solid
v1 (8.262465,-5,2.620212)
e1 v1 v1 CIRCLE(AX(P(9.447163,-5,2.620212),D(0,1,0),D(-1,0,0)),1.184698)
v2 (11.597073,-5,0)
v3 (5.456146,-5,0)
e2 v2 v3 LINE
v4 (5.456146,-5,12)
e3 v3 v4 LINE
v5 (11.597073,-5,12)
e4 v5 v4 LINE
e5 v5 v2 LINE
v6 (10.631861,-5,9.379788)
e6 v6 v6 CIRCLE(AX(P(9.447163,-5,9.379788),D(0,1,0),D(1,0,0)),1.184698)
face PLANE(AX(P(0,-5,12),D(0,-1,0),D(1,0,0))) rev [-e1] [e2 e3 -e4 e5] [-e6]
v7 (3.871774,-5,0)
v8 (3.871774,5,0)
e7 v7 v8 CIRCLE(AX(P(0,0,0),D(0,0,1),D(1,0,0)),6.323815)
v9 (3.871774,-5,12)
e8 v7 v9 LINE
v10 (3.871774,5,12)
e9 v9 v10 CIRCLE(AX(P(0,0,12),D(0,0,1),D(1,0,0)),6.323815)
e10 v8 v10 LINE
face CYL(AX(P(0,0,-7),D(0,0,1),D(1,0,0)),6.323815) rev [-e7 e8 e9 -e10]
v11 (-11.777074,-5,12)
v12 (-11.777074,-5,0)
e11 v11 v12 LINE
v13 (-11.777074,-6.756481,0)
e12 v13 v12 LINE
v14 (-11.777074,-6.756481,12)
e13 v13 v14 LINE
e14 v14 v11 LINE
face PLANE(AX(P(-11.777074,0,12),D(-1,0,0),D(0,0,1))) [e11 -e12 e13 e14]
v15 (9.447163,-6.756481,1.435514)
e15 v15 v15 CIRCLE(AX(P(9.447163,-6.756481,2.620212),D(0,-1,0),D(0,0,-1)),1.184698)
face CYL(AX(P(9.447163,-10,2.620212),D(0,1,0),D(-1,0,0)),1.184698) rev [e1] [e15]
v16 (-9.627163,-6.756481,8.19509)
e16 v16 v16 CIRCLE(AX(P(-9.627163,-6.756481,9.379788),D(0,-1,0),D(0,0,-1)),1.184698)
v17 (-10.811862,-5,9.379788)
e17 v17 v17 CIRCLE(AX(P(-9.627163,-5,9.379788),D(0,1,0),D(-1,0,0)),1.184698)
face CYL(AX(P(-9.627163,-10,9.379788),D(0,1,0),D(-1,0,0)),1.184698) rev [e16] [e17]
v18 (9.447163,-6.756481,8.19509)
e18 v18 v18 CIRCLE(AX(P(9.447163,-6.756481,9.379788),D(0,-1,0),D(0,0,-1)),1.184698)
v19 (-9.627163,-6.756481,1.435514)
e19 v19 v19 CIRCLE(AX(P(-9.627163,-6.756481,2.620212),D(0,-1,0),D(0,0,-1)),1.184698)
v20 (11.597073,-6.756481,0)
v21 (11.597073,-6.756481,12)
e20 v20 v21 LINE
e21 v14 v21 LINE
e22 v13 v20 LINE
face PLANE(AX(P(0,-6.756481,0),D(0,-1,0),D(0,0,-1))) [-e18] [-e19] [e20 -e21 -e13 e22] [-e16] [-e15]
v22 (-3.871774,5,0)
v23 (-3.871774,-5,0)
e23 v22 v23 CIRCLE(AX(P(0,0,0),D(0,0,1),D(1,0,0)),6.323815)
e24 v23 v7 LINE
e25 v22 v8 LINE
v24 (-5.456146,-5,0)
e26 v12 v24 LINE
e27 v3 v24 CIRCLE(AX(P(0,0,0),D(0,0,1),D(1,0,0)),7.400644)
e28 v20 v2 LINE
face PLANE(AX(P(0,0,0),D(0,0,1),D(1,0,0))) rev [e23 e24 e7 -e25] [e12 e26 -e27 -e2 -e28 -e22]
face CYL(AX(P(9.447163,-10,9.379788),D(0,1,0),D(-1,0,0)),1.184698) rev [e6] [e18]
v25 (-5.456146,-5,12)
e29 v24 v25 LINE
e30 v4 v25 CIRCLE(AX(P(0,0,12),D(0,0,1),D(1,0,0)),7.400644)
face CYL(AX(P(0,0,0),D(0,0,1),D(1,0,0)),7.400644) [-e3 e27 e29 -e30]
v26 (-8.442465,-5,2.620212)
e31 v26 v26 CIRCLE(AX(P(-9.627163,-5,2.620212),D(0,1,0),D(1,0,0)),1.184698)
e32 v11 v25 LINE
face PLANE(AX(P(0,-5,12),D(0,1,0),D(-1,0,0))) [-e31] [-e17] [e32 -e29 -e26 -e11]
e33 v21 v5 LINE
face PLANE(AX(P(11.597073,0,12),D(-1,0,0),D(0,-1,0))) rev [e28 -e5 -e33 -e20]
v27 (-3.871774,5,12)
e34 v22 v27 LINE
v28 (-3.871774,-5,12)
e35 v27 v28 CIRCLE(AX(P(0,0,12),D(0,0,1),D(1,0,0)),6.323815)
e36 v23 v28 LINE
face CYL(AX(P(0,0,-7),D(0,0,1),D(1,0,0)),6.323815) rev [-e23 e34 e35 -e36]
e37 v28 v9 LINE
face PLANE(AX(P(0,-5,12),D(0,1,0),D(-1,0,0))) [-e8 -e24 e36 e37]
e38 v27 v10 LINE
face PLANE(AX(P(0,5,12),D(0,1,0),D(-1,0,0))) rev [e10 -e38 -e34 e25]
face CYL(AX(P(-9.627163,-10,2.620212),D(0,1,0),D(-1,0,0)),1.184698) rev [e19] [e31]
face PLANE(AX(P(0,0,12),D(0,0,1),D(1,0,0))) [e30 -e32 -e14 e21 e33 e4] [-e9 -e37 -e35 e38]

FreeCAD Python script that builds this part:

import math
import FreeCAD as App
import Part
import Sketcher
from FreeCAD import Vector
Q = App.Units.Quantity

doc = App.newDocument("Part")
params = doc.addObject("Spreadsheet::Sheet", "Params")
for row, (alias, value) in enumerate([
    ("sketch1_radius", "6 mm"),
    ("sketch1_height", "1 mm"),
    ("pad1_length", "12 mm"),
    ("pocket1_length", "5 mm"),
    ("pad2_length", "12 mm"),
    ("sketch4_radius", "6.09 mm"),
    ("pocket2_length", "12 mm"),
    ("pocket3_length", "12 mm"),
    ("pocket4_length", "19 mm"),
], start=1):
    params.set(f"A{row}", alias)
    params.set(f"B{row}", "=" + value)
    params.setAlias(f"B{row}", alias)

body = doc.addObject("PartDesign::Body", "Body")

# Sketch on XY plane
sketch1 = body.newObject("Sketcher::SketchObject", "Sketch")
sketch1.AttachmentSupport = (doc.getObject("XY_Plane"), [""])
sketch1.MapMode = "FlatFace"
sketch1.addGeometry([
    Part.ArcOfCircle(Part.Circle(Vector(-0.1, 0, 0), Vector(0, 0, 1), 6.9), math.radians(-47), math.radians(227)),  # 0
    Part.LineSegment(Vector(-4.8, -5, 0), Vector(-11.8, -5, 0)),  # 1
    Part.LineSegment(Vector(-11.8, -5, 0), Vector(-11.8, -6, 0)),  # 2
    Part.LineSegment(Vector(-11.8, -6, 0), Vector(11.6, -6, 0)),  # 3
    Part.LineSegment(Vector(11.6, -6, 0), Vector(11.6, -5, 0)),  # 4
    Part.LineSegment(Vector(11.6, -5, 0), Vector(4.6, -5, 0)),  # 5
    Part.ArcOfCircle(Part.Circle(Vector(-0.1, 0, 0), Vector(0, 0, 1), 6), math.radians(124), math.radians(236)),  # 6
    Part.LineSegment(Vector(-3.4, 5, 0), Vector(3.2, 5, 0)),  # 7
    Part.ArcOfCircle(Part.Circle(Vector(-0.1, 0, 0), Vector(0, 0, 1), 6), math.radians(-56), math.radians(56)),  # 8
    Part.LineSegment(Vector(3.2, -5, 0), Vector(-3.4, -5, 0)),  # 9
], False)
sketch1.addConstraint([
    Sketcher.Constraint("Coincident", 0, 2, 1, 1),
    Sketcher.Constraint("Coincident", 1, 2, 2, 1),
    Sketcher.Constraint("Coincident", 2, 2, 3, 1),
    Sketcher.Constraint("Coincident", 3, 2, 4, 1),
    Sketcher.Constraint("Coincident", 4, 2, 5, 1),
    Sketcher.Constraint("Coincident", 5, 2, 0, 1),
    Sketcher.Constraint("Coincident", 6, 1, 7, 1),
    Sketcher.Constraint("Coincident", 7, 2, 8, 2),
    Sketcher.Constraint("Coincident", 8, 1, 9, 1),
    Sketcher.Constraint("Coincident", 9, 2, 6, 2),
    Sketcher.Constraint("Horizontal", 1),
    Sketcher.Constraint("Vertical", 2),
    Sketcher.Constraint("Horizontal", 3),
    Sketcher.Constraint("Vertical", 4),
    Sketcher.Constraint("Horizontal", 5),
    Sketcher.Constraint("Horizontal", 7),
    Sketcher.Constraint("Horizontal", 9),
    Sketcher.Constraint("Coincident", 6, 3, 0, 3),
    Sketcher.Constraint("Coincident", 8, 3, 0, 3),
    Sketcher.Constraint("Equal", 6, 8),
    Sketcher.Constraint("Symmetric", 7, 2, 8, 1, -1),
    Sketcher.Constraint("Horizontal", 1, 2, 4, 2),
    Sketcher.Constraint("Horizontal", 5, 2, 8, 1),
    Sketcher.Constraint("Equal", 1, 5),
    Sketcher.Constraint("Radius", 6, Q("6 mm")),
    Sketcher.Constraint("DistanceY", 2, 2, 2, 1, Q("1 mm")),
    Sketcher.Constraint("DistanceY", 0, 2, -1, 1, Q("5 mm")),
    Sketcher.Constraint("DistanceX", 0, 3, -1, 1, Q("0.09 mm")),
    Sketcher.Constraint("Radius", 0, Q("6.852462 mm")),
    Sketcher.Constraint("DistanceX", 1, 2, 1, 1, Q("7.001326 mm")),
])
sketch1.setExpression("Constraints[24]", "Params.sketch1_radius")
sketch1.setExpression("Constraints[25]", "Params.sketch1_height")
pad1 = body.newObject("PartDesign::Pad", "Pad")
pad1.Profile = sketch1
pad1.setExpression("Length", "Params.pad1_length")

# Sketch on XZ plane
sketch2 = body.newObject("Sketcher::SketchObject", "Sketch001")
sketch2.AttachmentSupport = (doc.getObject("XZ_Plane"), [""])
sketch2.MapMode = "FlatFace"
sketch2.AttachmentOffset = App.Placement(Vector(0, 0, 5), App.Rotation())
sketch2.addGeometry([
    Part.Circle(Vector(-9.6, 9.4, 0), Vector(0, 0, 1), 1.2),
    Part.Circle(Vector(9.4, 9.4, 0), Vector(0, 0, 1), 1.2),
    Part.Circle(Vector(9.4, 2.6, 0), Vector(0, 0, 1), 1.2),
    Part.Circle(Vector(-9.6, 2.6, 0), Vector(0, 0, 1), 1.2),
], False)
sketch2.addConstraint([
    Sketcher.Constraint("Equal", 0, 1),
    Sketcher.Constraint("Equal", 1, 2),
    Sketcher.Constraint("Equal", 2, 3),
    Sketcher.Constraint("Horizontal", 0, 3, 1, 3),
    Sketcher.Constraint("Horizontal", 2, 3, 3, 3),
    Sketcher.Constraint("Vertical", 1, 3, 2, 3),
    Sketcher.Constraint("Vertical", 0, 3, 3, 3),
    Sketcher.Constraint("Diameter", 0, Q("2.369397 mm")),
    Sketcher.Constraint("DistanceY", -1, 1, 0, 3, Q("9.379788 mm")),
    Sketcher.Constraint("DistanceY", -1, 1, 2, 3, Q("2.620212 mm")),
    Sketcher.Constraint("DistanceX", 0, 3, -1, 1, Q("9.627163 mm")),
    Sketcher.Constraint("DistanceX", -1, 1, 1, 3, Q("9.447163 mm")),
])
pocket1 = body.newObject("PartDesign::Pocket", "Pocket")
pocket1.Profile = sketch2
pocket1.setExpression("Length", "Params.pocket1_length")
pocket1.Reversed = True

# Sketch on XY plane
sketch3 = body.newObject("Sketcher::SketchObject", "Sketch002")
sketch3.AttachmentSupport = (doc.getObject("XY_Plane"), [""])
sketch3.MapMode = "FlatFace"
sketch3.AttachmentOffset = App.Placement(Vector(0, 0, 12), App.Rotation())
sketch3.addGeometry([
    Part.ArcOfCircle(Part.Circle(Vector(0, 0, 0), Vector(0, 0, 1), 7.4), math.radians(-43), math.radians(223)),  # 0
    Part.LineSegment(Vector(-5.5, -5, 0), Vector(-4.8, -5, 0)),  # 1
    Part.ArcOfCircle(Part.Circle(Vector(-0.1, 0, 0), Vector(0, 0, 1), 6.9), math.radians(-47), math.radians(227)),  # 2
    Part.LineSegment(Vector(4.6, -5, 0), Vector(5.5, -5, 0)),  # 3
    Part.LineSegment(Vector(-11.8, -6, 0), Vector(-11.8, -6.8, 0)),  # 4
    Part.LineSegment(Vector(-11.8, -6.8, 0), Vector(11.6, -6.8, 0)),  # 5
    Part.LineSegment(Vector(11.6, -6.8, 0), Vector(11.6, -6, 0)),  # 6
    Part.LineSegment(Vector(11.6, -6, 0), Vector(-11.8, -6, 0)),  # 7
], False)
sketch3.addConstraint([
    Sketcher.Constraint("Coincident", 0, 2, 1, 1),
    Sketcher.Constraint("Coincident", 1, 2, 2, 2),
    Sketcher.Constraint("Coincident", 2, 1, 3, 1),
    Sketcher.Constraint("Coincident", 3, 2, 0, 1),
    Sketcher.Constraint("Coincident", 4, 2, 5, 1),
    Sketcher.Constraint("Coincident", 5, 2, 6, 1),
    Sketcher.Constraint("Coincident", 6, 2, 7, 1),
    Sketcher.Constraint("Coincident", 7, 2, 4, 1),
    Sketcher.Constraint("Horizontal", 1),
    Sketcher.Constraint("Horizontal", 3),
    Sketcher.Constraint("Vertical", 4),
    Sketcher.Constraint("Horizontal", 5),
    Sketcher.Constraint("Vertical", 6),
    Sketcher.Constraint("Horizontal", 7),
    Sketcher.Constraint("Coincident", 0, 3, -1, 1),
    Sketcher.Constraint("PointOnObject", 2, 3, -1),
    Sketcher.Constraint("Horizontal", 1, 2, 2, 1),
    Sketcher.Constraint("DistanceY", 0, 2, -1, 1, Q("5 mm")),
    Sketcher.Constraint("DistanceY", 6, 2, -1, 1, Q("6 mm")),
    Sketcher.Constraint("DistanceX", 2, 3, -1, 1, Q("0.09 mm")),
    Sketcher.Constraint("Radius", 2, Q("6.852462 mm")),
    Sketcher.Constraint("DistanceX", 3, 1, 3, 2, Q("0.860398 mm")),
    Sketcher.Constraint("DistanceY", 4, 2, 4, 1, Q("0.756481 mm")),
    Sketcher.Constraint("DistanceX", 5, 1, 5, 2, Q("23.374147 mm")),
    Sketcher.Constraint("DistanceX", 4, 2, 2, 1, Q("16.372821 mm")),
])
pad2 = body.newObject("PartDesign::Pad", "Pad001")
pad2.Profile = sketch3
pad2.setExpression("Length", "Params.pad2_length")
pad2.Reversed = True

# Sketch on XY plane
sketch4 = body.newObject("Sketcher::SketchObject", "Sketch003")
sketch4.AttachmentSupport = (doc.getObject("XY_Plane"), [""])
sketch4.MapMode = "FlatFace"
sketch4.AttachmentOffset = App.Placement(Vector(0, 0, 12), App.Rotation())
sketch4.addGeometry([
    Part.LineSegment(Vector(3, 5, 0), Vector(-3, 5, 0)),
    Part.ArcOfCircle(Part.Circle(Vector(0, 0, 0), Vector(0, 0, 1), 6), math.radians(125), math.radians(235)),
    Part.LineSegment(Vector(-3, -5, 0), Vector(3, -5, 0)),
    Part.ArcOfCircle(Part.Circle(Vector(0, 0, 0), Vector(0, 0, 1), 6), math.radians(-55), math.radians(55)),
], False)
sketch4.addConstraint([
    Sketcher.Constraint("Coincident", 0, 2, 1, 1),
    Sketcher.Constraint("Coincident", 1, 2, 2, 1),
    Sketcher.Constraint("Coincident", 2, 2, 3, 1),
    Sketcher.Constraint("Coincident", 3, 2, 0, 1),
    Sketcher.Constraint("Horizontal", 0),
    Sketcher.Constraint("Horizontal", 2),
    Sketcher.Constraint("Coincident", 1, 3, -1, 1),
    Sketcher.Constraint("Coincident", 3, 3, -1, 1),
    Sketcher.Constraint("Equal", 1, 3),
    Sketcher.Constraint("Vertical", 0, 2, 1, 2),
    Sketcher.Constraint("Radius", 1, Q("6.09 mm")),
    Sketcher.Constraint("DistanceY", -1, 1, 0, 2, Q("5 mm")),
])
sketch4.setExpression("Constraints[10]", "Params.sketch4_radius")
pocket2 = body.newObject("PartDesign::Pocket", "Pocket001")
pocket2.Profile = sketch4
pocket2.setExpression("Length", "Params.pocket2_length")

# Sketch on XZ plane
sketch5 = body.newObject("Sketcher::SketchObject", "Sketch004")
sketch5.AttachmentSupport = (doc.getObject("XZ_Plane"), [""])
sketch5.MapMode = "FlatFace"
sketch5.AttachmentOffset = App.Placement(Vector(0, 0, 5), App.Rotation())
sketch5.addGeometry([
    Part.Circle(Vector(-9.6, 2.6, 0), Vector(0, 0, 1), 1.2),
    Part.Circle(Vector(-9.6, 9.4, 0), Vector(0, 0, 1), 1.2),
    Part.Circle(Vector(9.4, 2.6, 0), Vector(0, 0, 1), 1.2),
    Part.Circle(Vector(9.4, 9.4, 0), Vector(0, 0, 1), 1.2),
], False)
sketch5.addConstraint([
    Sketcher.Constraint("Equal", 0, 1),
    Sketcher.Constraint("Equal", 1, 2),
    Sketcher.Constraint("Equal", 2, 3),
    Sketcher.Constraint("Horizontal", 0, 3, 2, 3),
    Sketcher.Constraint("Horizontal", 1, 3, 3, 3),
    Sketcher.Constraint("Vertical", 0, 3, 1, 3),
    Sketcher.Constraint("Vertical", 2, 3, 3, 3),
    Sketcher.Constraint("Diameter", 0, Q("2.369397 mm")),
    Sketcher.Constraint("DistanceY", -1, 1, 0, 3, Q("2.620212 mm")),
    Sketcher.Constraint("DistanceY", -1, 1, 1, 3, Q("9.379788 mm")),
    Sketcher.Constraint("DistanceX", 0, 3, -1, 1, Q("9.627163 mm")),
    Sketcher.Constraint("DistanceX", -1, 1, 2, 3, Q("9.447163 mm")),
])
pocket3 = body.newObject("PartDesign::Pocket", "Pocket002")
pocket3.Profile = sketch5
pocket3.setExpression("Length", "Params.pocket3_length")
pocket3.Reversed = True

# Sketch on XY plane
sketch6 = body.newObject("Sketcher::SketchObject", "Sketch005")
sketch6.AttachmentSupport = (doc.getObject("XY_Plane"), [""])
sketch6.MapMode = "FlatFace"
sketch6.AttachmentOffset = App.Placement(Vector(0, 0, 12), App.Rotation())
sketch6.addGeometry([
    Part.ArcOfCircle(Part.Circle(Vector(0, 0, 0), Vector(0, 0, 1), 6), math.radians(128), math.radians(232)),
    Part.LineSegment(Vector(-4, -5, 0), Vector(4, -5, 0)),
    Part.ArcOfCircle(Part.Circle(Vector(0, 0, 0), Vector(0, 0, 1), 6), math.radians(-52), math.radians(52)),
    Part.LineSegment(Vector(4, 5, 0), Vector(-4, 5, 0)),
], False)
sketch6.addConstraint([
    Sketcher.Constraint("Coincident", 0, 2, 1, 1),
    Sketcher.Constraint("Coincident", 1, 2, 2, 1),
    Sketcher.Constraint("Coincident", 2, 2, 3, 1),
    Sketcher.Constraint("Coincident", 3, 2, 0, 1),
    Sketcher.Constraint("Horizontal", 1),
    Sketcher.Constraint("Horizontal", 3),
    Sketcher.Constraint("Coincident", 0, 3, -1, 1),
    Sketcher.Constraint("Coincident", 2, 3, -1, 1),
    Sketcher.Constraint("Equal", 0, 2),
    Sketcher.Constraint("Vertical", 1, 2, 2, 2),
    Sketcher.Constraint("DistanceY", 0, 2, -1, 1, Q("5 mm")),
    Sketcher.Constraint("Radius", 0, Q("6.323815 mm")),
])
pocket4 = body.newObject("PartDesign::Pocket", "Pocket003")
pocket4.Profile = sketch6
pocket4.setExpression("Length", "Params.pocket4_length")

doc.recompute()
